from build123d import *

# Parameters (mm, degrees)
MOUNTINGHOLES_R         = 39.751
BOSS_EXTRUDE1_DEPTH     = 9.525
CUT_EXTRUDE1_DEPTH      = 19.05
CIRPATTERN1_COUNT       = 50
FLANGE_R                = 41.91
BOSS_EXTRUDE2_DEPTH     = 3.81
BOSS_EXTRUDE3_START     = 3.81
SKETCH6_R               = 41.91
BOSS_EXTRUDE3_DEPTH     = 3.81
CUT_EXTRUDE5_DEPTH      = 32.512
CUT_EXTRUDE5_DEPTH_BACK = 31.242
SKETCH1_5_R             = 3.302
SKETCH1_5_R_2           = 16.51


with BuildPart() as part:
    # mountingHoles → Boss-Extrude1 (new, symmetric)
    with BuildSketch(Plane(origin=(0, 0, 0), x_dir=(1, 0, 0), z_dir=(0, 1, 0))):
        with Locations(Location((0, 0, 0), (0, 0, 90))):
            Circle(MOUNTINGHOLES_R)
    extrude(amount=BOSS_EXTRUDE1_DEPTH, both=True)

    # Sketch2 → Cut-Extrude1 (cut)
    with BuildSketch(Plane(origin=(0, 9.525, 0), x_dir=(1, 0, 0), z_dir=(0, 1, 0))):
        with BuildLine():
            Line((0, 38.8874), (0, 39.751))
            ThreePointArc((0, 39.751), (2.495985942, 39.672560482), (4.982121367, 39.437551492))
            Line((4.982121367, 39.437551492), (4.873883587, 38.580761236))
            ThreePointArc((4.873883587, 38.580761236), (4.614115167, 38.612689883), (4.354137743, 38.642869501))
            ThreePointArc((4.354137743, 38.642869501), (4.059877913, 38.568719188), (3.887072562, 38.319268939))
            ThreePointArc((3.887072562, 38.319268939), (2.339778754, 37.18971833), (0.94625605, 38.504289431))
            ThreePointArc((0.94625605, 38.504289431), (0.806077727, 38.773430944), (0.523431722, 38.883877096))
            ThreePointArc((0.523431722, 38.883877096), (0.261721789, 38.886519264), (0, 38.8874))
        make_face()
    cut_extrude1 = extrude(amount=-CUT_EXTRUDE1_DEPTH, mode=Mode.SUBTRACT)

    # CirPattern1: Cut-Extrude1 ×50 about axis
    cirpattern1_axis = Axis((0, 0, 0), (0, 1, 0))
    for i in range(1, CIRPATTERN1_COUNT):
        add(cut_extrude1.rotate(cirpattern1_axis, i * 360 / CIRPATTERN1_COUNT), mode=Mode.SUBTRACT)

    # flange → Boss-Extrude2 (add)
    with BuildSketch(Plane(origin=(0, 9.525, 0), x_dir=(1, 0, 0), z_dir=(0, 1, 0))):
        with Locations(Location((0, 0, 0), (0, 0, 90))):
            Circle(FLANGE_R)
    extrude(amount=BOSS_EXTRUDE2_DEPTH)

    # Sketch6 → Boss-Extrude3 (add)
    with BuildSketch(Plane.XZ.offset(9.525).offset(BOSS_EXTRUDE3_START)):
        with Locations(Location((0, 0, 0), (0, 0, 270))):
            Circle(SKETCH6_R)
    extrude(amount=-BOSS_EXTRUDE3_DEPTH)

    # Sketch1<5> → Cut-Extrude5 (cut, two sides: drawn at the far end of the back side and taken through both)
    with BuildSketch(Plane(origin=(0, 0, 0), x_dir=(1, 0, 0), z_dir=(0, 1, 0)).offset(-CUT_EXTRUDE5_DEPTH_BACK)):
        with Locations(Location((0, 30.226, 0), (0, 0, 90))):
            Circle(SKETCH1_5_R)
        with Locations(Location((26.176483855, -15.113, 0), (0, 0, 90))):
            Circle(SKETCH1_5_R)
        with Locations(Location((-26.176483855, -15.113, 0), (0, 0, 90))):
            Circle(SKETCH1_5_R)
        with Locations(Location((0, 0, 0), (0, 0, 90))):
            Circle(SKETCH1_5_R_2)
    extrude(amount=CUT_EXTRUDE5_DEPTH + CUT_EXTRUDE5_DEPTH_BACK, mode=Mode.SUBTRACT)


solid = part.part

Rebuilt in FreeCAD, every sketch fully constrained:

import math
import FreeCAD as App
import Part
import Sketcher
Q = App.Units.Quantity

doc = App.newDocument("Part")
body = doc.addObject("PartDesign::Body", "Body")

# Sketch on XZ plane
sketch1 = body.newObject("Sketcher::SketchObject", "Sketch")
sketch1.AttachmentSupport = (doc.getObject("XZ_Plane"), [""])
sketch1.MapMode = "FlatFace"
sketch1.addGeometry(Part.Circle(App.Vector(0, 0, 0), App.Vector(0, 0, 1), 39.751), False)
sketch1.addConstraint([
    Sketcher.Constraint("Coincident", 0, 3, -1, 1),
    Sketcher.Constraint("Diameter", 0, Q("3.13 in")),
])
pad1 = body.newObject("PartDesign::Pad", "Pad")
pad1.Profile = sketch1
pad1.Length = Q("0.75 in")
pad1.Midplane = True

# Sketch on XZ plane
sketch2 = body.newObject("Sketcher::SketchObject", "Sketch001")
sketch2.AttachmentSupport = (doc.getObject("XZ_Plane"), [""])
sketch2.MapMode = "FlatFace"
sketch2.AttachmentOffset = App.Placement(App.Vector(0, 0, -0.375 * 25.4), App.Rotation())
sketch2.addGeometry([
    Part.LineSegment(App.Vector(0, -39.751, 0), App.Vector(0, -38.8874, 0)),  # 0
    Part.ArcOfCircle(Part.Circle(App.Vector(0, 0.000005, 0), App.Vector(0, 0, 1), 38.887405), math.radians(-90), math.radians(-89.228765)),  # 1
    Part.ArcOfCircle(Part.Circle(App.Vector(0.51762, -38.452116, 0), App.Vector(0, 0, 1), 0.4318), math.radians(-89.228765), math.radians(-6.93985)),  # 2
    Part.ArcOfCircle(Part.Circle(App.Vector(2.433877, -38.685361, 0), App.Vector(0, 0, 1), 1.4986), math.radians(14.139849), math.radians(173.060151)),  # 3
    Part.ArcOfCircle(Part.Circle(App.Vector(4.30579, -38.213785, 0), App.Vector(0, 0, 1), 0.4318), math.radians(-165.86015), math.radians(-83.571235)),  # 4
    Part.ArcOfCircle(Part.Circle(App.Vector(0.000001, -0.000007, 0), App.Vector(0, 0, 1), 38.887393), math.radians(-83.571235), math.radians(-82.8)),  # 5
    Part.LineSegment(App.Vector(4.873884, -38.580761, 0), App.Vector(4.982121, -39.437551, 0)),  # 6
    Part.ArcOfCircle(Part.Circle(App.Vector(0, 0, 0), App.Vector(0, 0, 1), 39.751), math.radians(-90), math.radians(-82.8)),  # 7
], False)
sketch2.addConstraint([
    Sketcher.Constraint("Coincident", 0, 2, 1, 1),
    Sketcher.Constraint("Tangent", 1, 2, 2, 1),
    Sketcher.Constraint("Tangent", 2, 2, 3, 2),
    Sketcher.Constraint("Tangent", 3, 1, 4, 1),
    Sketcher.Constraint("Tangent", 4, 2, 5, 1),
    Sketcher.Constraint("Coincident", 5, 2, 6, 1),
    Sketcher.Constraint("Coincident", 6, 2, 7, 2),
    Sketcher.Constraint("Coincident", 7, 1, 0, 1),
    Sketcher.Constraint("Vertical", 0),
    Sketcher.Constraint("Coincident", 1, 3, -1, 1),
    Sketcher.Constraint("Coincident", 5, 3, -1, 1),
    Sketcher.Constraint("Coincident", 7, 3, -1, 1),
    Sketcher.Constraint("Equal", 2, 4),
    Sketcher.Constraint("PointOnObject", 0, 2, -2),
    Sketcher.Constraint("Radius", 1, Q("1.5310002 in")),
    Sketcher.Constraint("Radius", 2, Q("0.017 in")),
    Sketcher.Constraint("Radius", 3, Q("0.059 in")),
    Sketcher.Constraint("Radius", 7, Q("1.565 in")),
    Sketcher.Constraint("Angle", 6, Q("-82.8 deg")),
    Sketcher.Constraint("Distance", 6, Q("0.034 in")),
    Sketcher.Constraint("DistanceY", 4, 2, 3, 1, Q("0.323601 mm")),
    Sketcher.Constraint("DistanceY", 3, 3, 5, 2, Q("0.1046 mm")),
    Sketcher.Constraint("DistanceX", -1, 1, 2, 3, Q("0.51762 mm")),
])
pocket1 = body.newObject("PartDesign::Pocket", "Pocket")
pocket1.Profile = sketch2
pocket1.Length = Q("0.75 in")
pocket1.Reversed = True
doc.recompute()

polarpattern = body.newObject("PartDesign::PolarPattern", "PolarPattern")
polarpattern.Originals = [pocket1]
polarpattern.Axis = (doc.getObject("Y_Axis"), [""])
polarpattern.Angle = 360
polarpattern.Occurrences = 50
body.Tip = polarpattern

# Sketch on XZ plane
sketch3 = body.newObject("Sketcher::SketchObject", "Sketch002")
sketch3.AttachmentSupport = (doc.getObject("XZ_Plane"), [""])
sketch3.MapMode = "FlatFace"
sketch3.AttachmentOffset = App.Placement(App.Vector(0, 0, -0.375 * 25.4), App.Rotation())
sketch3.addGeometry(Part.Circle(App.Vector(0, 0, 0), App.Vector(0, 0, 1), 41.91), False)
sketch3.addConstraint([
    Sketcher.Constraint("Coincident", 0, 3, -1, 1),
    Sketcher.Constraint("Diameter", 0, Q("3.3 in")),
])
pad2 = body.newObject("PartDesign::Pad", "Pad001")
pad2.Profile = sketch3
pad2.Length = Q("0.15 in")
pad2.Reversed = True

# Sketch on XZ plane
sketch4 = body.newObject("Sketcher::SketchObject", "Sketch003")
sketch4.AttachmentSupport = (doc.getObject("XZ_Plane"), [""])
sketch4.MapMode = "FlatFace"
sketch4.AttachmentOffset = App.Placement(App.Vector(0, 0, 0.525 * 25.4), App.Rotation())
sketch4.addGeometry(Part.Circle(App.Vector(0, 0, 0), App.Vector(0, 0, 1), 41.91), False)
sketch4.addConstraint([
    Sketcher.Constraint("Coincident", 0, 3, -1, 1),
    Sketcher.Constraint("Diameter", 0, Q("3.3 in")),
])
pad3 = body.newObject("PartDesign::Pad", "Pad002")
pad3.Profile = sketch4
pad3.Length = Q("0.15 in")
pad3.Reversed = True

# Sketch on XZ plane
sketch5 = body.newObject("Sketcher::SketchObject", "Sketch004")
sketch5.AttachmentSupport = (doc.getObject("XZ_Plane"), [""])
sketch5.MapMode = "FlatFace"
sketch5.addGeometry([
    Part.Circle(App.Vector(0, -30.226, 0), App.Vector(0, 0, 1), 3.302),
    Part.Circle(App.Vector(26.176484, 15.113, 0), App.Vector(0, 0, 1), 3.302),
    Part.Circle(App.Vector(-26.176484, 15.113, 0), App.Vector(0, 0, 1), 3.302),
    Part.Circle(App.Vector(0, 0, 0), App.Vector(0, 0, 1), 16.51),
], False)
sketch5.addConstraint([
    Sketcher.Constraint("Coincident", 3, 3, -1, 1),
    Sketcher.Constraint("Equal", 0, 1),
    Sketcher.Constraint("Equal", 1, 2),
    Sketcher.Constraint("Symmetric", 1, 3, 2, 3, -2),
    Sketcher.Constraint("PointOnObject", 0, 3, -2),
    Sketcher.Constraint("Diameter", 3, Q("1.3 in")),
    Sketcher.Constraint("Diameter", 0, Q("0.26 in")),
    Sketcher.Constraint("DistanceY", 0, 3, -1, 1, Q("1.19 in")),
    Sketcher.Constraint("DistanceY", -1, 1, 1, 3, Q("0.595 in")),
    Sketcher.Constraint("DistanceX", -1, 1, 1, 3, Q("26.176484 mm")),
])
pocket2 = body.newObject("PartDesign::Pocket", "Pocket001")
pocket2.Profile = sketch5
pocket2.Type = "ThroughAll"
pocket2.Midplane = True

doc.recompute()
